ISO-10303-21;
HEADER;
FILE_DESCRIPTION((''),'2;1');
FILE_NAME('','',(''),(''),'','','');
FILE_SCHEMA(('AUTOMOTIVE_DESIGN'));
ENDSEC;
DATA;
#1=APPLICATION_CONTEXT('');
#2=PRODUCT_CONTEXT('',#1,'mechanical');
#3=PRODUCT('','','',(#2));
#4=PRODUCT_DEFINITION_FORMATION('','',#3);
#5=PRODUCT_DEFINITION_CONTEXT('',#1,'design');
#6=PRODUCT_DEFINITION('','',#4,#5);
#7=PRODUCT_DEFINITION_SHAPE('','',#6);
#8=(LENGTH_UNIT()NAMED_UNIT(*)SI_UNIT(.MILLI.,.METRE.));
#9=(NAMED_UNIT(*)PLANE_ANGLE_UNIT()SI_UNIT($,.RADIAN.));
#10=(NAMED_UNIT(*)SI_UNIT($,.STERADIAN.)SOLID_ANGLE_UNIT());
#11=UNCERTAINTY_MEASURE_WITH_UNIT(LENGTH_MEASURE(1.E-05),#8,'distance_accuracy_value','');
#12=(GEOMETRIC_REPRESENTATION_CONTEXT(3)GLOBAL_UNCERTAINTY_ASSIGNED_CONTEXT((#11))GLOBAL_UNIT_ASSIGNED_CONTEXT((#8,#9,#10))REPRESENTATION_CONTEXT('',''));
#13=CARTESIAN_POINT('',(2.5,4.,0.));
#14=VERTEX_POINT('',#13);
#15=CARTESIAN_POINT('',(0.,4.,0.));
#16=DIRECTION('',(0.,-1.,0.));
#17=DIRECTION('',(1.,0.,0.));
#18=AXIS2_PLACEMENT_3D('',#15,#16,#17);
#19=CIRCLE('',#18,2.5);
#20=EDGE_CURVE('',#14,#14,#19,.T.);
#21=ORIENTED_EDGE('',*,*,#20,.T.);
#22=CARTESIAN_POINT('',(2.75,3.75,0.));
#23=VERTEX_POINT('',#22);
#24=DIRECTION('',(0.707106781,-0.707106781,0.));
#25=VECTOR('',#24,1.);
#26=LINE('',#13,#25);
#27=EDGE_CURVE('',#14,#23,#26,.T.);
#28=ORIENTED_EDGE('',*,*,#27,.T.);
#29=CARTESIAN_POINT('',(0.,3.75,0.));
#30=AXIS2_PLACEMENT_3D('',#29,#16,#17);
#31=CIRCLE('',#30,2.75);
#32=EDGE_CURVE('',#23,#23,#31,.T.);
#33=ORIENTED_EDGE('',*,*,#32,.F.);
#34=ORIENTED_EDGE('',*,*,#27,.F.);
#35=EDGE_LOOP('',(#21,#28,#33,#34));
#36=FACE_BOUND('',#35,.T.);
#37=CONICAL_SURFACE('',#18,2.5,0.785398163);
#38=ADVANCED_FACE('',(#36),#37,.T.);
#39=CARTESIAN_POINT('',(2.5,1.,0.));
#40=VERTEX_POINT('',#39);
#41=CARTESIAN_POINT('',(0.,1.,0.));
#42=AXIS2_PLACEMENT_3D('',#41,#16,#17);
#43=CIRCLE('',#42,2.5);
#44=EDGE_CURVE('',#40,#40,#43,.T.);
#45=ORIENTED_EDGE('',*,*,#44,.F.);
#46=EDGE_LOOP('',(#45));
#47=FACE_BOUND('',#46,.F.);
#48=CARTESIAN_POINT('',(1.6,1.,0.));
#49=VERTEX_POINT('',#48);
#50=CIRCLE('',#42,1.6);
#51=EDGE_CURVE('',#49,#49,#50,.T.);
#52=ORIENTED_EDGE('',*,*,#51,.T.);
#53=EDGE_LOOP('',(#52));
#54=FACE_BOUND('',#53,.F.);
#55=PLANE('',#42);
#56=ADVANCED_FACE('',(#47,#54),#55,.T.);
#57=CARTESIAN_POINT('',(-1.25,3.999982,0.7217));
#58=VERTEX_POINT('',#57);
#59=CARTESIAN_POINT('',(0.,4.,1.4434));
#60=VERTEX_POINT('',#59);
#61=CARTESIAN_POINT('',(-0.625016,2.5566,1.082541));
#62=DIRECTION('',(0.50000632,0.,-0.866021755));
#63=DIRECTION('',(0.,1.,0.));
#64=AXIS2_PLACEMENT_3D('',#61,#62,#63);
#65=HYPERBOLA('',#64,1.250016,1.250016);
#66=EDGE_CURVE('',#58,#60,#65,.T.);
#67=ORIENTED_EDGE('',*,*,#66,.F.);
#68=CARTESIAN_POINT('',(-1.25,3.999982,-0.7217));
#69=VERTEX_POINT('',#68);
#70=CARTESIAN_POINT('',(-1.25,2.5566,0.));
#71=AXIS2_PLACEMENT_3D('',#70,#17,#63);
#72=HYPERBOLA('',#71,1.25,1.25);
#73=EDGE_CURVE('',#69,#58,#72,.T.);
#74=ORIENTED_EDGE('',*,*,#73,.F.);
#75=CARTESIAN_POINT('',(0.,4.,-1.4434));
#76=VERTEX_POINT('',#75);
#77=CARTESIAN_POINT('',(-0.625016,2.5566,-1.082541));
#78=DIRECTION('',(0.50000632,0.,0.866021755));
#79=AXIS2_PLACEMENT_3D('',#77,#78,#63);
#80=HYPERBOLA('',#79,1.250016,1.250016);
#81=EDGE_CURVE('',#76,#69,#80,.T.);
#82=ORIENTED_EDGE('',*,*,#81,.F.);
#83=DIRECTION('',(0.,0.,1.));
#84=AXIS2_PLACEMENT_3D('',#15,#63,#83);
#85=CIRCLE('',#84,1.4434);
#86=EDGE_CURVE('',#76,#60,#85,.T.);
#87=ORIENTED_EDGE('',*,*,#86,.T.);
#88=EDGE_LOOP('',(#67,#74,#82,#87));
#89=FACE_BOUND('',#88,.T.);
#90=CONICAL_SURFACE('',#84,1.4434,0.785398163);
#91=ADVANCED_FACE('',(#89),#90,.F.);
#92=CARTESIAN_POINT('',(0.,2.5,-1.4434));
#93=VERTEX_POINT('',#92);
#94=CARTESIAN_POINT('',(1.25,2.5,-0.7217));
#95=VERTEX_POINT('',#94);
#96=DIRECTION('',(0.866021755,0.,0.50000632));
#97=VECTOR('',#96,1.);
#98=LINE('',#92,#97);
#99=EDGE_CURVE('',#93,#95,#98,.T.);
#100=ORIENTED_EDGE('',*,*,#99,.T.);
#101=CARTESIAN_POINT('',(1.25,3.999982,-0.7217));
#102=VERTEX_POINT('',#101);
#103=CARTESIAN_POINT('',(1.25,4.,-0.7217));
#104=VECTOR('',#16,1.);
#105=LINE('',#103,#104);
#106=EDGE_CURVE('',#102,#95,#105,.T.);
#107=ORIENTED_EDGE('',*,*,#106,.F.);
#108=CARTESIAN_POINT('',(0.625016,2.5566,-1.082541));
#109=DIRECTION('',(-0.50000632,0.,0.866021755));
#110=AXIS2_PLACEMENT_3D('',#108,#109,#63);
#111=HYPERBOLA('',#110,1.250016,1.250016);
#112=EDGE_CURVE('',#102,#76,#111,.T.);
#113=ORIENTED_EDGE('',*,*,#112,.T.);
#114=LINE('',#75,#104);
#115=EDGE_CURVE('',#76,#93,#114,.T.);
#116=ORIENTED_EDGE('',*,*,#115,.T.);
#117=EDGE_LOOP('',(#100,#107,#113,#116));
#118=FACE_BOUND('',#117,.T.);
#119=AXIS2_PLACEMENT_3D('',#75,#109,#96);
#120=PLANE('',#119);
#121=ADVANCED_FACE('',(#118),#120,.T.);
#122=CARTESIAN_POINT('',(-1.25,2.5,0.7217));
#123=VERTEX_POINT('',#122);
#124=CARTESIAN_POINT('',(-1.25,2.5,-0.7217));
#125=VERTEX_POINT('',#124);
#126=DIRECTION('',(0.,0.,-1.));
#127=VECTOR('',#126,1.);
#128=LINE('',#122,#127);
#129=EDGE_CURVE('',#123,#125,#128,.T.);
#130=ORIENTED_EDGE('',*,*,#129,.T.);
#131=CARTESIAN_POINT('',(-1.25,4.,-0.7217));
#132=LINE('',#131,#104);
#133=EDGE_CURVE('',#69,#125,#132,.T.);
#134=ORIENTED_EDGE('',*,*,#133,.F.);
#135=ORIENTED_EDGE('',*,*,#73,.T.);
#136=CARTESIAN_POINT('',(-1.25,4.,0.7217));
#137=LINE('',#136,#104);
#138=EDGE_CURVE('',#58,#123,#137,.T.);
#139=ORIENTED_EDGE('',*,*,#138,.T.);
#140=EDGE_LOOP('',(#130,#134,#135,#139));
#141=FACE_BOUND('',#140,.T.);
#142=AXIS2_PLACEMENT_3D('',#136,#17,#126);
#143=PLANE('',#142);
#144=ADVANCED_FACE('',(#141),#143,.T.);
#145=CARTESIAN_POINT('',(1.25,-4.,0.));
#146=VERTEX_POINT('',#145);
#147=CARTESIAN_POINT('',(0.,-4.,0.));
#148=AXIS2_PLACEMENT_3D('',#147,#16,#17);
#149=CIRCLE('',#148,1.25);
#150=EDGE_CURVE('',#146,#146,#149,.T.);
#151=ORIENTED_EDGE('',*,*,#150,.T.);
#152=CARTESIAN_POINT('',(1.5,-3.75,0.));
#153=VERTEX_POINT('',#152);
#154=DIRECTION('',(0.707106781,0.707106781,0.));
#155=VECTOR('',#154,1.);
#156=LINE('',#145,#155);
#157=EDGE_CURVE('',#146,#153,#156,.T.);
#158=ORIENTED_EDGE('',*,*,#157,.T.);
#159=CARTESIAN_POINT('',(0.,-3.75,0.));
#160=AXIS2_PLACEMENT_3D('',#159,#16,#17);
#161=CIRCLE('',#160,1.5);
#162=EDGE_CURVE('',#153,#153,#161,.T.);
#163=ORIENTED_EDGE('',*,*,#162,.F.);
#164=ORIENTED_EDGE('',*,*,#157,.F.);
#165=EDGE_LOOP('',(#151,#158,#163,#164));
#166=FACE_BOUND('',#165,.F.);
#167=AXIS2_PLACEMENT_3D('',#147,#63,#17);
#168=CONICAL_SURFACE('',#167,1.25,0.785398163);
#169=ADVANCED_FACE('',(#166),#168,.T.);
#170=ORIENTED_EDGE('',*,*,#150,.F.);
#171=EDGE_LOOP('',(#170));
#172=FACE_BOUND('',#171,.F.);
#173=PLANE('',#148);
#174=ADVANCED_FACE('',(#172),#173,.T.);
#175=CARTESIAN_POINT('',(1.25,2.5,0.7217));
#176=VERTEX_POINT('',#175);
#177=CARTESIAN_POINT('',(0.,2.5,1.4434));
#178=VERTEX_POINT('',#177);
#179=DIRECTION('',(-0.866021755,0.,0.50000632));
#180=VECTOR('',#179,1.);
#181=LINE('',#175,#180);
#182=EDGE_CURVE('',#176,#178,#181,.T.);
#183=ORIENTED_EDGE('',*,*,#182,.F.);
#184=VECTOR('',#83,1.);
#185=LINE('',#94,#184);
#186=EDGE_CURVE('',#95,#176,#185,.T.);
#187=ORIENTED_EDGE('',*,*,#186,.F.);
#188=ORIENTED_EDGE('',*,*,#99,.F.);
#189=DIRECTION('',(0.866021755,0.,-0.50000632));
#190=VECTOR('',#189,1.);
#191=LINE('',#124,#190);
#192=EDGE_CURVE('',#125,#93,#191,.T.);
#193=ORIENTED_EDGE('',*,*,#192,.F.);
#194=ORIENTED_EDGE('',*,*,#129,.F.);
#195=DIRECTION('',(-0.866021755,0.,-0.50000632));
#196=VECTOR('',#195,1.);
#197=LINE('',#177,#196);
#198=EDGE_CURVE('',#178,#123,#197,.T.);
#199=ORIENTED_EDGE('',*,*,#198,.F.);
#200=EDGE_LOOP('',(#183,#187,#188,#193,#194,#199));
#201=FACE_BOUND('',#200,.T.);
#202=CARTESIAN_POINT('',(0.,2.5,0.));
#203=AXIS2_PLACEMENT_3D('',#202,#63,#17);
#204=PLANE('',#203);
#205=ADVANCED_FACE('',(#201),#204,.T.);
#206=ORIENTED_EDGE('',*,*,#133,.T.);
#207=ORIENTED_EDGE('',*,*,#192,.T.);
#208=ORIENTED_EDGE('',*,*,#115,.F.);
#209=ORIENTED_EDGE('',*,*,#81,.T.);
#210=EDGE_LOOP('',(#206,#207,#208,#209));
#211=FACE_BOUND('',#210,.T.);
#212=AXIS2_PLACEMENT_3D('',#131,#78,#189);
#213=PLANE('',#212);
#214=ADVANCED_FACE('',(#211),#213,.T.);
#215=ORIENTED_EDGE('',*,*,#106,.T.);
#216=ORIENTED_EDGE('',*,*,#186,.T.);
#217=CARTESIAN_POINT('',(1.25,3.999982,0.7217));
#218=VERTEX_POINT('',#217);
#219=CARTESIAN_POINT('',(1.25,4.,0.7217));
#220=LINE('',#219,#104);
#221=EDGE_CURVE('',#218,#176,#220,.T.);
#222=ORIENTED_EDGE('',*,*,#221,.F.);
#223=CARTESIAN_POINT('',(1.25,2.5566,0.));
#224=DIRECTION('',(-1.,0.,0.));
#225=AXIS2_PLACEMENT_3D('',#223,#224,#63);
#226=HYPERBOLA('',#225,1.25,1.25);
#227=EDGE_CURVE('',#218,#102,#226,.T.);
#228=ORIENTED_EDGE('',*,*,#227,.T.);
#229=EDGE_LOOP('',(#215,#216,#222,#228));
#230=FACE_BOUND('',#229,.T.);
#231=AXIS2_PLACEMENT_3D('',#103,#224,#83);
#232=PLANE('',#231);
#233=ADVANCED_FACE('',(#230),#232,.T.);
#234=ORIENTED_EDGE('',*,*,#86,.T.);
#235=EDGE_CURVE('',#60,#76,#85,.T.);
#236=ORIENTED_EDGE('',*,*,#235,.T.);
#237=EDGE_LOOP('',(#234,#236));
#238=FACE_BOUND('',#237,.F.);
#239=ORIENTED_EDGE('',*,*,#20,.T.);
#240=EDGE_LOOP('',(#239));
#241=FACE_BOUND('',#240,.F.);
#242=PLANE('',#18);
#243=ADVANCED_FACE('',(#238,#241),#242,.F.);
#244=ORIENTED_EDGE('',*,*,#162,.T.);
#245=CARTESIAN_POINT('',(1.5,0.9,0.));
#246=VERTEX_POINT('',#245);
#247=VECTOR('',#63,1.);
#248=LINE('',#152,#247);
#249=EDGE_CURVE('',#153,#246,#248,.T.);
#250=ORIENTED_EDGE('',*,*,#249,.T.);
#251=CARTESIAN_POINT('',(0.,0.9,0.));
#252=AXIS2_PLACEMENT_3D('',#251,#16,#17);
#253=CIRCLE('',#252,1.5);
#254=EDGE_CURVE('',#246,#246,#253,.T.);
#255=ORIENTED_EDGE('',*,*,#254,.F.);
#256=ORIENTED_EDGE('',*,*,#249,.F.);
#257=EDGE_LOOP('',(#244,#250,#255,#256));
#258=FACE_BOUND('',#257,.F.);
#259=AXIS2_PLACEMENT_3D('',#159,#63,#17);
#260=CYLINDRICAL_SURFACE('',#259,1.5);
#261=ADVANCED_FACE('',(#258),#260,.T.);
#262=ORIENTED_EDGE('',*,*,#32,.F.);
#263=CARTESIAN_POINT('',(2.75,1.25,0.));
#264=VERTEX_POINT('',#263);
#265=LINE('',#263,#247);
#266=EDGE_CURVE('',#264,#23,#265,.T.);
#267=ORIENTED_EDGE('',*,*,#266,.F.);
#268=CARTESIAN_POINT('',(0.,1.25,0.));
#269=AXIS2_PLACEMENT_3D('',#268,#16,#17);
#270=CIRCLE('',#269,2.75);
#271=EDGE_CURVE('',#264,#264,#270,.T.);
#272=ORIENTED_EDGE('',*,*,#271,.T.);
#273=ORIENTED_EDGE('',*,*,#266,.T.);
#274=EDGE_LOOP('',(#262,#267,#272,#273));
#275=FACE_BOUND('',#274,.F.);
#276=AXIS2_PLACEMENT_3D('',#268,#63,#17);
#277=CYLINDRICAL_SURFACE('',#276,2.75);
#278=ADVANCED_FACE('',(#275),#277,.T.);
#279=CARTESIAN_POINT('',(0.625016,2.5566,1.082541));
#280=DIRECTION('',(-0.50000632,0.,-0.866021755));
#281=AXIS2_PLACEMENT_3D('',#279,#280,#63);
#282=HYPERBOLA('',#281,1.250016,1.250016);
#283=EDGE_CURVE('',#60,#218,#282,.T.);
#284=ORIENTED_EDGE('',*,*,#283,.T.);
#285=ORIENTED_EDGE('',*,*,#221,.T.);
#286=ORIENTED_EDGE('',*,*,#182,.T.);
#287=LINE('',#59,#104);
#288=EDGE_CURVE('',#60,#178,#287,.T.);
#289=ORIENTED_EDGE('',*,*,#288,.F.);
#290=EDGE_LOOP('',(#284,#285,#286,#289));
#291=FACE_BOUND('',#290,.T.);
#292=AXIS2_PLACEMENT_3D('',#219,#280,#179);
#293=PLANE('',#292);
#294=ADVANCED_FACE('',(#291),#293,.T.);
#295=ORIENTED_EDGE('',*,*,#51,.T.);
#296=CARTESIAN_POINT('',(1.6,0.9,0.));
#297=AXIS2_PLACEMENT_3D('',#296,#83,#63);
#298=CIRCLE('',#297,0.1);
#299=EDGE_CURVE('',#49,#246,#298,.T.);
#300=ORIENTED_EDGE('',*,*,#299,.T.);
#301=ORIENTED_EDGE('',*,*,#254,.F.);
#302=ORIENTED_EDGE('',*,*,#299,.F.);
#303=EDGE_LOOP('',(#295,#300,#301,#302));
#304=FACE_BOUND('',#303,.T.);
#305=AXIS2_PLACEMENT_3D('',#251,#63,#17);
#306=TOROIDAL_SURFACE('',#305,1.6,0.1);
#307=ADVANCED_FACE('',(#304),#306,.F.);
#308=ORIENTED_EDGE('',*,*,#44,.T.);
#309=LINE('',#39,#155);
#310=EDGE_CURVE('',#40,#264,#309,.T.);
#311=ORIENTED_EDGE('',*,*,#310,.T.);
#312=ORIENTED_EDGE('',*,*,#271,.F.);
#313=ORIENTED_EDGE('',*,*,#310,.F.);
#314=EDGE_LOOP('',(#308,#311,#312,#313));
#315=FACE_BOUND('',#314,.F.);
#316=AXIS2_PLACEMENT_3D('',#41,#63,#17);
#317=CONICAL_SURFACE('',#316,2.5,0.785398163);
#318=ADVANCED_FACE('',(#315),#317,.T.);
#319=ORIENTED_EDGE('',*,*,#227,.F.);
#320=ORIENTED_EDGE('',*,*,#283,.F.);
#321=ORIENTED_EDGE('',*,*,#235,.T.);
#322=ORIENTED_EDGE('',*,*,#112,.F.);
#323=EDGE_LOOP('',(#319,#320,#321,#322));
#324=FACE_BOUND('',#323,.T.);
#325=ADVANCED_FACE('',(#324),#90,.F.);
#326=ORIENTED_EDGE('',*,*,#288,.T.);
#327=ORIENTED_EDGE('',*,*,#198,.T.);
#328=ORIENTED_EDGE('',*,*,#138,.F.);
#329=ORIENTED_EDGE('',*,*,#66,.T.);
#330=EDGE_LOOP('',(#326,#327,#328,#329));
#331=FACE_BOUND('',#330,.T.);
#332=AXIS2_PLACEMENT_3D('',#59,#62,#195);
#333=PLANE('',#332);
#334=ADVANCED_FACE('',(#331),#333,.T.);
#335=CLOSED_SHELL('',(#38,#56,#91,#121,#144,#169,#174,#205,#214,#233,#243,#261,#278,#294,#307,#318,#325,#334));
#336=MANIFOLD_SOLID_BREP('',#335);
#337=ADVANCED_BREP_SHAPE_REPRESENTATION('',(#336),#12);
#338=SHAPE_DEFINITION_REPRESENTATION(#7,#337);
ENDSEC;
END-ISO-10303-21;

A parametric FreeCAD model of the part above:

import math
import FreeCAD as App
import Part
import Sketcher

V = App.Vector
Q = App.Units.Quantity


def add_polygon(sketch, points):
    """Adds a closed chain of lines whose ends are joined by coincident constraints."""
    first, n = sketch.GeometryCount, len(points)
    for a, b in zip(points, points[1:] + points[:1]):
        sketch.addGeometry(Part.LineSegment(App.Vector(*a, 0), App.Vector(*b, 0)), False)
    for i in range(n):
        sketch.addConstraint(Sketcher.Constraint("Coincident", first + i, 2, first + (i + 1) % n, 1))

doc = App.newDocument("Part")
body = doc.addObject("PartDesign::Body", "Body")

# Sketch on XY plane
sketch1 = body.newObject("Sketcher::SketchObject", "Sketch")
sketch1.AttachmentSupport = (doc.getObject("XY_Plane"), [""])
sketch1.MapMode = "FlatFace"
sketch1.addGeometry([
    Part.LineSegment(V(2.5, 4, 0), V(0, 4, 0)),  # 0
    Part.LineSegment(V(0, 4, 0), V(0, -4, 0)),  # 1
    Part.LineSegment(V(0, -4, 0), V(1.25, -4, 0)),  # 2
    Part.LineSegment(V(1.25, -4, 0), V(1.5, -3.75, 0)),  # 3
    Part.LineSegment(V(1.5, -3.75, 0), V(1.5, 0.9, 0)),  # 4
    Part.ArcOfCircle(Part.Circle(V(1.6, 0.9, 0), V(0, 0, 1), 0.1), math.radians(90), math.radians(180)),  # 5
    Part.LineSegment(V(1.6, 1, 0), V(2.5, 1, 0)),  # 6
    Part.LineSegment(V(2.5, 1, 0), V(2.75, 1.25, 0)),  # 7
    Part.LineSegment(V(2.75, 1.25, 0), V(2.75, 3.75, 0)),  # 8
    Part.LineSegment(V(2.75, 3.75, 0), V(2.5, 4, 0)),  # 9
], False)
sketch1.addConstraint([
    Sketcher.Constraint("Coincident", 0, 2, 1, 1),
    Sketcher.Constraint("Coincident", 1, 2, 2, 1),
    Sketcher.Constraint("Coincident", 2, 2, 3, 1),
    Sketcher.Constraint("Coincident", 3, 2, 4, 1),
    Sketcher.Constraint("Tangent", 4, 2, 5, 2),
    Sketcher.Constraint("Tangent", 5, 1, 6, 1),
    Sketcher.Constraint("Coincident", 6, 2, 7, 1),
    Sketcher.Constraint("Coincident", 7, 2, 8, 1),
    Sketcher.Constraint("Coincident", 8, 2, 9, 1),
    Sketcher.Constraint("Coincident", 9, 2, 0, 1),
    Sketcher.Constraint("Horizontal", 0),
    Sketcher.Constraint("Vertical", 1),
    Sketcher.Constraint("Horizontal", 2),
    Sketcher.Constraint("Vertical", 4),
    Sketcher.Constraint("Horizontal", 6),
    Sketcher.Constraint("Vertical", 8),
    Sketcher.Constraint("Symmetric", 0, 2, 1, 2, -1, 1),
    Sketcher.Constraint("Parallel", 3, 7),
    Sketcher.Constraint("Perpendicular", 7, 9),
    Sketcher.Constraint("Vertical", 6, 2, 9, 2),
    Sketcher.Constraint("Equal", 0, 8),
    Sketcher.Constraint("Equal", 3, 7),
    Sketcher.Constraint("Equal", 7, 9),
    Sketcher.Constraint("DistanceY", 5, 1, 0, 2, Q("3 mm")),
    Sketcher.Constraint("DistanceY", 2, 2, 5, 1, Q("5 mm")),
    Sketcher.Constraint("Radius", 5, Q("0.1 mm")),
    Sketcher.Constraint("DistanceX", 2, 2, 3, 2, Q("0.25 mm")),
    Sketcher.Constraint("DistanceX", 6, 1, 6, 2, Q("0.9 mm")),
])
revolution = body.newObject("PartDesign::Revolution", "Revolution")
revolution.Profile = sketch1
revolution.ReferenceAxis = (sketch1, ["V_Axis"])
revolution.Angle = 360

# Sketch on XZ plane
sketch2 = body.newObject("Sketcher::SketchObject", "Sketch001")
sketch2.AttachmentSupport = (doc.getObject("XZ_Plane"), [""])
sketch2.MapMode = "FlatFace"
sketch2.AttachmentOffset = App.Placement(V(0, 0, -4), App.Rotation())
add_polygon(sketch2, [(-1.2, 0.7), (0, 1.4), (1.2, 0.7), (1.2, -0.7), (0, -1.4), (-1.2, -0.7)])  # lines 0-5
sketch2.addConstraint([
    Sketcher.Constraint("Vertical", 2),
    Sketcher.Constraint("Vertical", 5),
    Sketcher.Constraint("Symmetric", 0, 2, 3, 2, -1, 1),
    Sketcher.Constraint("Symmetric", 1, 2, 4, 2, -1, 1),
    Sketcher.Constraint("PointOnObject", 0, 2, -2),
    Sketcher.Constraint("Parallel", 0, 3),
    Sketcher.Constraint("Horizontal", 2, 2, 4, 2),
    Sketcher.Constraint("DistanceX", 4, 2, 2, 2, Q("2.5 mm")),
    Sketcher.Constraint("Angle", 0, Q("30.0004 deg")),
    Sketcher.Constraint("DistanceY", 2, 2, 2, 1, Q("1.4434 mm")),
])
pocket1 = body.newObject("PartDesign::Pocket", "Pocket")
pocket1.Profile = sketch2
pocket1.Length = 1.5
pocket1.Reversed = True

# Sketch on YZ plane
sketch3 = body.newObject("Sketcher::SketchObject", "Sketch002")
sketch3.AttachmentSupport = (doc.getObject("YZ_Plane"), [""])
sketch3.MapMode = "FlatFace"
add_polygon(sketch3, [(4, 0.9), (4, 1.4), (3.5, 0.9)])  # lines 0-2
sketch3.addConstraint([
    Sketcher.Constraint("Vertical", 0),
    Sketcher.Constraint("Horizontal", 2),
    Sketcher.Constraint("Equal", 2, 0),
    Sketcher.Constraint("DistanceX", 2, 1, 2, 2, Q("0.5 mm")),
    Sketcher.Constraint("DistanceX", -1, 1, 0, 2, Q("4 mm")),
    Sketcher.Constraint("DistanceY", -1, 1, 0, 2, Q("1.4434 mm")),
])
groove = body.newObject("PartDesign::Groove", "Groove")
groove.Profile = sketch3
groove.ReferenceAxis = (sketch3, ["H_Axis"])
groove.Angle = 360

doc.recompute()
